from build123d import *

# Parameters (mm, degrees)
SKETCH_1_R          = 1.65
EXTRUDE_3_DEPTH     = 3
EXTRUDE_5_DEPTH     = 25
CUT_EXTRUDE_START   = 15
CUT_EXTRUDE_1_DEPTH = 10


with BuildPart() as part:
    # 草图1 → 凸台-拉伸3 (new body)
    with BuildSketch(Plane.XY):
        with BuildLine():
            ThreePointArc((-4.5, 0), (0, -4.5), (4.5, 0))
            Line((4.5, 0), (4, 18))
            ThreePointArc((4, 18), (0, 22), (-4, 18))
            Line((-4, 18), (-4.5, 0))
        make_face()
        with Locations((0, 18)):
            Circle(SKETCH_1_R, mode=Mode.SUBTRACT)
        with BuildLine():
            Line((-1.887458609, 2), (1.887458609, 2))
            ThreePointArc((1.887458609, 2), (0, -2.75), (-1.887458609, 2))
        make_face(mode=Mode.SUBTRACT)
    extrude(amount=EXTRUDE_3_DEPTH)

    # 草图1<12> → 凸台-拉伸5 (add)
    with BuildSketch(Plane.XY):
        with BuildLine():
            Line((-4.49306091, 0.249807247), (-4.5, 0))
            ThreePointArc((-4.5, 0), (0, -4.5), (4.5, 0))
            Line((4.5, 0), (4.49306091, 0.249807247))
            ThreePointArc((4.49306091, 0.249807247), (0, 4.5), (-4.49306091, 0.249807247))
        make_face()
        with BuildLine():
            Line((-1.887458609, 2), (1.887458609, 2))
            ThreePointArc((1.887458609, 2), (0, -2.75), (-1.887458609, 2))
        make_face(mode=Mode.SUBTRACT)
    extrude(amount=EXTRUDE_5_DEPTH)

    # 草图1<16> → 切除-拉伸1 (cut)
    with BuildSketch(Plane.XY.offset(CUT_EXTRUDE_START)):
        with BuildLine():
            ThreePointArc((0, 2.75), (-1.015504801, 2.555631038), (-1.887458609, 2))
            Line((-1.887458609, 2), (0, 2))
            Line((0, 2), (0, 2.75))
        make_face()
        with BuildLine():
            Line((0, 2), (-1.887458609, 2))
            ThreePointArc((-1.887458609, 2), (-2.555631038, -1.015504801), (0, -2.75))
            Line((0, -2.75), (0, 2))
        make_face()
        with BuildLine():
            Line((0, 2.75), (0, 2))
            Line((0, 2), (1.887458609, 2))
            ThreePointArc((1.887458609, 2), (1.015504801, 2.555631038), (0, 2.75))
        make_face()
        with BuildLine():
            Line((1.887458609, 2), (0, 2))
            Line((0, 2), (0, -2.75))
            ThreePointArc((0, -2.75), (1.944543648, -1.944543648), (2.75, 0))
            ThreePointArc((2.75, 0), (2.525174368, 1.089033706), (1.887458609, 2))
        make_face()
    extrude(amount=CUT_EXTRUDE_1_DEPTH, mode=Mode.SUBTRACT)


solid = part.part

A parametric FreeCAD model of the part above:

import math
import FreeCAD as App
import Part
import Sketcher

V = App.Vector

doc = App.newDocument("Part")
body = doc.addObject("PartDesign::Body", "Body")

sketch1 = body.newObject("Sketcher::SketchObject", "Sketch")
sketch1.AttachmentSupport = (doc.getObject("XY_Plane"), [""])
sketch1.MapMode = "FlatFace"
sketch1.addGeometry([
    Part.ArcOfCircle(Part.Circle(V(0, 0, 0), V(0, 0, 1), 4.5), math.radians(180), math.radians(360)),
    Part.LineSegment(V(4.5, 0, 0), V(4, 18, 0)),
    Part.ArcOfCircle(Part.Circle(V(0, 18, 0), V(0, 0, 1), 4), math.radians(0), math.radians(180)),
    Part.LineSegment(V(-4, 18, 0), V(-4.5, 0, 0)),
    Part.ArcOfCircle(Part.Circle(V(0, 0, 0), V(0, 0, 1), 2.8), math.radians(133), math.radians(407)),
    Part.LineSegment(V(-1.9, 2, 0), V(1.9, 2, 0)),
    Part.Circle(V(0, 18, 0), V(0, 0, 1), 1.6),
], False)
sketch1.addConstraint([
    Sketcher.Constraint("Coincident", 0, 2, 1, 1),
    Sketcher.Constraint("Coincident", 1, 2, 2, 1),
    Sketcher.Constraint("Coincident", 2, 2, 3, 1),
    Sketcher.Constraint("Coincident", 3, 2, 0, 1),
    Sketcher.Constraint("Coincident", 4, 1, 5, 1),
    Sketcher.Constraint("Coincident", 5, 2, 4, 2),
    Sketcher.Constraint("Horizontal", 5),
    Sketcher.Constraint("Coincident", 0, 3, -1, 1),
    Sketcher.Constraint("Coincident", 4, 3, -1, 1),
    Sketcher.Constraint("Coincident", 6, 3, 2, 3),
    Sketcher.Constraint("Symmetric", 1, 2, 2, 2, -2),
    Sketcher.Constraint("PointOnObject", 0, 2, -1),
    Sketcher.Constraint("PointOnObject", 3, 2, -1),
    Sketcher.Constraint("Horizontal", 6, 3, 1, 2),
    Sketcher.Constraint("Radius", 2, 4.0),
    Sketcher.Constraint("Diameter", 6, 3.3),
    Sketcher.Constraint("Radius", 0, 4.5),
    Sketcher.Constraint("Radius", 4, 2.75),
    Sketcher.Constraint("DistanceY", -1, 1, 2, 3, 18.0),
    Sketcher.Constraint("DistanceY", -1, 1, 4, 1, 2.0),
])
pad1 = body.newObject("PartDesign::Pad", "Pad")
pad1.Profile = sketch1
pad1.Length = 3

sketch2 = body.newObject("Sketcher::SketchObject", "Sketch001")
sketch2.AttachmentSupport = (doc.getObject("XY_Plane"), [""])
sketch2.MapMode = "FlatFace"
sketch2.addGeometry([
    Part.LineSegment(V(-4.49, 0.25, 0), V(-4.5, 0, 0)),
    Part.ArcOfCircle(Part.Circle(V(0, 0, 0), V(0, 0, 1), 4.5), math.radians(180), math.radians(360)),
    Part.LineSegment(V(4.5, 0, 0), V(4.49, 0.25, 0)),
    Part.ArcOfCircle(Part.Circle(V(0, 0, 0), V(0, 0, 1), 4.5), math.radians(3), math.radians(177)),
    Part.ArcOfCircle(Part.Circle(V(0, 0, 0), V(0, 0, 1), 2.75), math.radians(133), math.radians(407)),
    Part.LineSegment(V(-1.89, 2, 0), V(1.89, 2, 0)),
], False)
sketch2.addConstraint([
    Sketcher.Constraint("Coincident", 0, 2, 1, 1),
    Sketcher.Constraint("Coincident", 1, 2, 2, 1),
    Sketcher.Constraint("Coincident", 2, 2, 3, 1),
    Sketcher.Constraint("Coincident", 3, 2, 0, 1),
    Sketcher.Constraint("Coincident", 4, 1, 5, 1),
    Sketcher.Constraint("Coincident", 5, 2, 4, 2),
    Sketcher.Constraint("Horizontal", 5),
    Sketcher.Constraint("Coincident", 1, 3, -1, 1),
    Sketcher.Constraint("Coincident", 3, 3, -1, 1),
    Sketcher.Constraint("Coincident", 4, 3, -1, 1),
    Sketcher.Constraint("Equal", 1, 3),
    Sketcher.Constraint("PointOnObject", 0, 2, -1),
    Sketcher.Constraint("PointOnObject", 1, 2, -1),
    Sketcher.Constraint("Horizontal", 2, 2, 3, 2),
    Sketcher.Constraint("Radius", 1, 4.5),
    Sketcher.Constraint("Radius", 4, 2.75),
    Sketcher.Constraint("DistanceY", -1, 1, 4, 1, 2.0),
    Sketcher.Constraint("DistanceX", -1, 1, 2, 2, 4.493061),
])
pad2 = body.newObject("PartDesign::Pad", "Pad001")
pad2.Profile = sketch2
pad2.Length = 25

sketch3 = body.newObject("Sketcher::SketchObject", "Sketch002")
sketch3.AttachmentSupport = (doc.getObject("XY_Plane"), [""])
sketch3.MapMode = "FlatFace"
sketch3.AttachmentOffset = App.Placement(V(0, 0, 15), App.Rotation())
sketch3.addGeometry([
    Part.ArcOfCircle(Part.Circle(V(0, 0, 0), V(0, 0, 1), 2.8), math.radians(-90), math.radians(0)),
    Part.ArcOfCircle(Part.Circle(V(0, 0, 0), V(0, 0, 1), 2.7), math.radians(0), math.radians(47)),
    Part.ArcOfCircle(Part.Circle(V(0, 0, 0), V(0, 0, 1), 2.7), math.radians(47), math.radians(90)),
    Part.ArcOfCircle(Part.Circle(V(0, 0, 0), V(0, 0, 1), 2.7), math.radians(90), math.radians(133)),
    Part.ArcOfCircle(Part.Circle(V(0, 0, 0), V(0, 0, 1), 2.8), math.radians(133), math.radians(270)),
], False)
sketch3.addConstraint([
    Sketcher.Constraint("Tangent", 0, 2, 1, 1),
    Sketcher.Constraint("Tangent", 1, 2, 2, 1),
    Sketcher.Constraint("Tangent", 2, 2, 3, 1),
    Sketcher.Constraint("Tangent", 3, 2, 4, 1),
    Sketcher.Constraint("Tangent", 4, 2, 0, 1),
    Sketcher.Constraint("Coincident", 0, 3, -1, 1),
    Sketcher.Constraint("Coincident", 2, 3, -1, 1),
    Sketcher.Constraint("PointOnObject", 0, 2, -1),
    Sketcher.Constraint("PointOnObject", 2, 2, -2),
    Sketcher.Constraint("PointOnObject", 4, 2, -2),
    Sketcher.Constraint("Horizontal", 1, 2, 3, 2),
    Sketcher.Constraint("Radius", 0, 2.75),
    Sketcher.Constraint("DistanceY", -1, 1, 1, 2, 2.0),
])
pocket1 = body.newObject("PartDesign::Pocket", "Pocket")
pocket1.Profile = sketch3
pocket1.Length = 10
pocket1.Reversed = True

doc.recompute()
